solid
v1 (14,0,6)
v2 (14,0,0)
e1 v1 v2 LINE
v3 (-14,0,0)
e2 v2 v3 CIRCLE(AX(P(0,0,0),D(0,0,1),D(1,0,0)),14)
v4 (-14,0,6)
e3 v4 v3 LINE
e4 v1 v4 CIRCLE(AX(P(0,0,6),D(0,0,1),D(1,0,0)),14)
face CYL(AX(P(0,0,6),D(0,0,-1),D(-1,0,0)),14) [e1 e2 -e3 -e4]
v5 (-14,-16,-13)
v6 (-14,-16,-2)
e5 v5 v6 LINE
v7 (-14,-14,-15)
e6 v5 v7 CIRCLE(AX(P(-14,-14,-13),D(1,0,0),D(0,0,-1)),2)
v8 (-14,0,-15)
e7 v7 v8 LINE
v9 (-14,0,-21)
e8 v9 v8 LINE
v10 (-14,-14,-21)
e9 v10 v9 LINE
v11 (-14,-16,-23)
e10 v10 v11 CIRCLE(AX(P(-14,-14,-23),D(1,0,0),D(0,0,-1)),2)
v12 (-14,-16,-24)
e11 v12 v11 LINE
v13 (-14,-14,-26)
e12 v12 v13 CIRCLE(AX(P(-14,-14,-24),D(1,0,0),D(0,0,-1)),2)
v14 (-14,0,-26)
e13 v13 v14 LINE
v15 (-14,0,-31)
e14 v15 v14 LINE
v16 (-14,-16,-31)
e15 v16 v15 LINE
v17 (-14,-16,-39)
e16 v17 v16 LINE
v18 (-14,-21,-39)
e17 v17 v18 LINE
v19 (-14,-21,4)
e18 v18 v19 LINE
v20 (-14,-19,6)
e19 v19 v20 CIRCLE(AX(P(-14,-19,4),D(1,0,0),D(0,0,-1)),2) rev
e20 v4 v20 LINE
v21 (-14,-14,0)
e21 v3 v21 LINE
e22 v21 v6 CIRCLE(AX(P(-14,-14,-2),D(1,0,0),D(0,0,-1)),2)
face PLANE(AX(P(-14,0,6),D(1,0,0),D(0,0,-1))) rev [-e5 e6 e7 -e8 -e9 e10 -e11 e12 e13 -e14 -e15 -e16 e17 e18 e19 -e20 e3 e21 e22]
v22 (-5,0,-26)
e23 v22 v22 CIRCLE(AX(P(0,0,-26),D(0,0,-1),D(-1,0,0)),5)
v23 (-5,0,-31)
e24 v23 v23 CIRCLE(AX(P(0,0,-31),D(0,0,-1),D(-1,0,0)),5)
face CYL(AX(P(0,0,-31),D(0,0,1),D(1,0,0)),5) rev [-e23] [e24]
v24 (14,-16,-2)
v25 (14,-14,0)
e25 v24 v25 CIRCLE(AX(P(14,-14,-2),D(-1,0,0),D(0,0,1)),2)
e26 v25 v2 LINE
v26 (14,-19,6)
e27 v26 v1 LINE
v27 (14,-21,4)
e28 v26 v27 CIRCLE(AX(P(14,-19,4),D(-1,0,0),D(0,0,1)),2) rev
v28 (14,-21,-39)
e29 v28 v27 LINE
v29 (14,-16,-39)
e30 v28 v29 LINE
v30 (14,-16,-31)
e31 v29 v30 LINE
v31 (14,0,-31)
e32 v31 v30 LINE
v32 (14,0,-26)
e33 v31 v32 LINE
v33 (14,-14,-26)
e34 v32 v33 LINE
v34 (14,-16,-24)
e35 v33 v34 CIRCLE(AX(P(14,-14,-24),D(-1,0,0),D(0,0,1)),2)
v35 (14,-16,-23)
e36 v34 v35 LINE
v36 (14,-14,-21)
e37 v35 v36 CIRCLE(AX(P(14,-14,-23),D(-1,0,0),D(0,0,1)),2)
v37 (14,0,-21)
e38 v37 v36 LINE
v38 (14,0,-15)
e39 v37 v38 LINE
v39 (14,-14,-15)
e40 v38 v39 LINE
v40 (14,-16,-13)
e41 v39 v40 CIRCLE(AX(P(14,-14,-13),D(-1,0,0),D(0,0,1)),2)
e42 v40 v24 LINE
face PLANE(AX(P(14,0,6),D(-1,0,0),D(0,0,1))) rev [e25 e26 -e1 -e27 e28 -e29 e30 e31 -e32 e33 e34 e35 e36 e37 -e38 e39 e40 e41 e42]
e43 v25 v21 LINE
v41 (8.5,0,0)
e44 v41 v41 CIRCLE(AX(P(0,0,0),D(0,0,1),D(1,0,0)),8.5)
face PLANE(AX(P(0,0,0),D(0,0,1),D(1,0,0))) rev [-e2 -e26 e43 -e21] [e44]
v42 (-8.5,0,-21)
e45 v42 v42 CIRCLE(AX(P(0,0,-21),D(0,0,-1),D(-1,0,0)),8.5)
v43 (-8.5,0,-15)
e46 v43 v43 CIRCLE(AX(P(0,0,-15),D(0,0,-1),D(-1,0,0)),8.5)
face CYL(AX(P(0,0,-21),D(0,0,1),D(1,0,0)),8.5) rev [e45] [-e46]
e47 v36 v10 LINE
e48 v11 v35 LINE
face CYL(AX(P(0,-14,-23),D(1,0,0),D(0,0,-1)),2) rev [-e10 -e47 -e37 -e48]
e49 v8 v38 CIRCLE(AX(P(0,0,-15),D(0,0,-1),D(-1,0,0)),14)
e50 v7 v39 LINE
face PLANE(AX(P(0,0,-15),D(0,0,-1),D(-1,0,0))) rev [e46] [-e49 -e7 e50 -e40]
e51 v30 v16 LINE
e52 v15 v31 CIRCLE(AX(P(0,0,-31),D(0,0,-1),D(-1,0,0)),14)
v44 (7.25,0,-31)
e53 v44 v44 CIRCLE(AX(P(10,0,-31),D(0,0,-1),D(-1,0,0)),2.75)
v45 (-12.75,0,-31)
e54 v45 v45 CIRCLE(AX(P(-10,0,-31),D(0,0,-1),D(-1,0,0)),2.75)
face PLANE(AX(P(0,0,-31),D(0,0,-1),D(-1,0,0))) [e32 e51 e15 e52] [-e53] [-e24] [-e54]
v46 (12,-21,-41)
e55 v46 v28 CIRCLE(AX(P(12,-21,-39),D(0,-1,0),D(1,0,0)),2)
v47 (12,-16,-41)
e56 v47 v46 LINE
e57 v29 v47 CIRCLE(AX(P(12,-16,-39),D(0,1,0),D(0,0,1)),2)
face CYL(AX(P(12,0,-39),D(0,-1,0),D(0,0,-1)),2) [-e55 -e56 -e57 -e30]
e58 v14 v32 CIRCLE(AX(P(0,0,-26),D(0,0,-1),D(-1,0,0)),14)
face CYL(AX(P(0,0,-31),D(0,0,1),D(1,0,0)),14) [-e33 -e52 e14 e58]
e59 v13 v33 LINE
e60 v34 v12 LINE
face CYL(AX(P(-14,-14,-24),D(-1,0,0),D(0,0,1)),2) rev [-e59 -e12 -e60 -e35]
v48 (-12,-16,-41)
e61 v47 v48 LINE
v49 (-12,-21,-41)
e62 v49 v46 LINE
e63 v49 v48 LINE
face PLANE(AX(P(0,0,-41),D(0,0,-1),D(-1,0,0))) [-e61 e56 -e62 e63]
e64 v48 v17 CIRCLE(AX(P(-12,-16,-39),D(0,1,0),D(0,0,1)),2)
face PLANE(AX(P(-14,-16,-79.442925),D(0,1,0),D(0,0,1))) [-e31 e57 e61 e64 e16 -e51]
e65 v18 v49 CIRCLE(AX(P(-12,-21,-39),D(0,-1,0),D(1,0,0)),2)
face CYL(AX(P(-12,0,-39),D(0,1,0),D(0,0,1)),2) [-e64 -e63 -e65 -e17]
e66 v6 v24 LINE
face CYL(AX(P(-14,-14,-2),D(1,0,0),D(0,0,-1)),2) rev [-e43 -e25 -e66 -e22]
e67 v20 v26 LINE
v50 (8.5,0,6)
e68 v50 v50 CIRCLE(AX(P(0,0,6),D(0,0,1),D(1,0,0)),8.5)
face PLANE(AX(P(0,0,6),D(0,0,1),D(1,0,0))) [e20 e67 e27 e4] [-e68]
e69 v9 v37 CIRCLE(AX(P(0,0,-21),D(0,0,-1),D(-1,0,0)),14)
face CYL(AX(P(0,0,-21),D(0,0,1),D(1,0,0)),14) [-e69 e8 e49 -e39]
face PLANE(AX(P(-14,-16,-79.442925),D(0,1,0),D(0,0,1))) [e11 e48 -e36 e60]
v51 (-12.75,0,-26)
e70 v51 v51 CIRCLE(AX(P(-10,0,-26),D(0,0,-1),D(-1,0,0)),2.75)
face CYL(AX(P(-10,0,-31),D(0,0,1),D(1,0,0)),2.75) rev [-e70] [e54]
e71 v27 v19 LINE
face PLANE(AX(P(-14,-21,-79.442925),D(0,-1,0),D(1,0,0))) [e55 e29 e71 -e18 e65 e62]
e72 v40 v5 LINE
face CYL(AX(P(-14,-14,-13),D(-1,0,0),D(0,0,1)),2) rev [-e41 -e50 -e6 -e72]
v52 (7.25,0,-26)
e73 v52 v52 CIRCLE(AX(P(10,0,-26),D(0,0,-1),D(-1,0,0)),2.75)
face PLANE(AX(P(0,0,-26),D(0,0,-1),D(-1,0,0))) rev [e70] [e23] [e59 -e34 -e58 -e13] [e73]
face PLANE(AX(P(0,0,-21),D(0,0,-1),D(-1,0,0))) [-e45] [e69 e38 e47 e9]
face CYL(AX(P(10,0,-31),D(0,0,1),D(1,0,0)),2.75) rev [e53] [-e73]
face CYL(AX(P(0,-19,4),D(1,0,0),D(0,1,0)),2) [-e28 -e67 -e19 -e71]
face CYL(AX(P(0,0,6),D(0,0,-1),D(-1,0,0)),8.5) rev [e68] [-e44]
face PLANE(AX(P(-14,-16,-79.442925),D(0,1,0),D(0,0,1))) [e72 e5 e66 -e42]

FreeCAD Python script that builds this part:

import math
import FreeCAD as App
import Part
import Sketcher
from FreeCAD import Vector


def edges_at(feature, points):
    """Names of the edges that pass closest to the given points."""
    edges = feature.Shape.Edges
    near = lambda p: min(range(len(edges)), key=lambda i: edges[i].distToShape(Part.Vertex(*p))[0])
    return sorted({f"Edge{near(p) + 1}" for p in points})

doc = App.newDocument("Part")
body = doc.addObject("PartDesign::Body", "Body")

# Sketch on XY plane
sketch1 = body.newObject("Sketcher::SketchObject", "Sketch")
sketch1.AttachmentSupport = (doc.getObject("XY_Plane"), [""])
sketch1.MapMode = "FlatFace"
sketch1.addGeometry([
    Part.LineSegment(Vector(14, -16, 0), Vector(14, 0, 0)),  # 0
    Part.ArcOfCircle(Part.Circle(Vector(0, 0, 0), Vector(0, 0, 1), 14), math.radians(0), math.radians(180)),  # 1
    Part.LineSegment(Vector(-14, 0, 0), Vector(-14, -16, 0)),  # 2
    Part.LineSegment(Vector(-14, -16, 0), Vector(14, -16, 0)),  # 3
    Part.Circle(Vector(0, 0, 0), Vector(0, 0, 1), 8),  # 4
], False)
sketch1.addConstraint([
    Sketcher.Constraint("Tangent", 0, 2, 1, 1),
    Sketcher.Constraint("Tangent", 1, 2, 2, 1),
    Sketcher.Constraint("Coincident", 2, 2, 3, 1),
    Sketcher.Constraint("Coincident", 3, 2, 0, 1),
    Sketcher.Constraint("Vertical", 0),
    Sketcher.Constraint("Vertical", 2),
    Sketcher.Constraint("Horizontal", 3),
    Sketcher.Constraint("Coincident", 1, 3, -1, 1),
    Sketcher.Constraint("Coincident", 4, 3, -1, 1),
    Sketcher.Constraint("Diameter", 4, 17.0),
    Sketcher.Constraint("Radius", 1, 14.0),
    Sketcher.Constraint("DistanceY", 0, 1, 0, 2, 16.0),
])
pad1 = body.newObject("PartDesign::Pad", "Pad")
pad1.Profile = sketch1
pad1.Length = 6
body2 = doc.addObject("PartDesign::Body", "Body001")

# Sketch on XY plane
sketch2 = body2.newObject("Sketcher::SketchObject", "Sketch001")
sketch2.AttachmentSupport = (doc.getObject("XY_Plane001"), [""])
sketch2.MapMode = "FlatFace"
sketch2.AttachmentOffset = App.Placement(Vector(0, 0, -15), App.Rotation())
sketch2.addGeometry([
    Part.LineSegment(Vector(14, 0, 0), Vector(14, -16, 0)),  # 0
    Part.LineSegment(Vector(14, -16, 0), Vector(-14, -16, 0)),  # 1
    Part.LineSegment(Vector(-14, -16, 0), Vector(-14, 0, 0)),  # 2
    Part.ArcOfCircle(Part.Circle(Vector(0, 0, 0), Vector(0, 0, 1), 14), math.radians(0), math.radians(180)),  # 3
    Part.Circle(Vector(0, 0, 0), Vector(0, 0, 1), 8),  # 4
], False)
sketch2.addConstraint([
    Sketcher.Constraint("Coincident", 0, 2, 1, 1),
    Sketcher.Constraint("Coincident", 1, 2, 2, 1),
    Sketcher.Constraint("Tangent", 2, 2, 3, 2),
    Sketcher.Constraint("Tangent", 3, 1, 0, 1),
    Sketcher.Constraint("Vertical", 0),
    Sketcher.Constraint("Horizontal", 1),
    Sketcher.Constraint("Vertical", 2),
    Sketcher.Constraint("Coincident", 3, 3, -1, 1),
    Sketcher.Constraint("Coincident", 4, 3, -1, 1),
    Sketcher.Constraint("Diameter", 4, 17.0),
    Sketcher.Constraint("Radius", 3, 14.0),
    Sketcher.Constraint("DistanceY", 0, 2, 0, 1, 16.0),
])
pad2 = body2.newObject("PartDesign::Pad", "Pad001")
pad2.Profile = sketch2
pad2.Length = 6
pad2.Reversed = True
body3 = doc.addObject("PartDesign::Body", "Body002")

# Sketch on XY plane
sketch3 = body3.newObject("Sketcher::SketchObject", "Sketch002")
sketch3.AttachmentSupport = (doc.getObject("XY_Plane002"), [""])
sketch3.MapMode = "FlatFace"
sketch3.AttachmentOffset = App.Placement(Vector(0, 0, -26), App.Rotation())
sketch3.addGeometry([
    Part.LineSegment(Vector(14, -16, 0), Vector(-14, -16, 0)),  # 0
    Part.LineSegment(Vector(-14, -16, 0), Vector(-14, 0, 0)),  # 1
    Part.ArcOfCircle(Part.Circle(Vector(0, 0, 0), Vector(0, 0, 1), 14), math.radians(0), math.radians(180)),  # 2
    Part.LineSegment(Vector(14, 0, 0), Vector(14, -16, 0)),  # 3
    Part.Circle(Vector(10, 0, 0), Vector(0, 0, 1), 2.8),  # 4
    Part.Circle(Vector(0, 0, 0), Vector(0, 0, 1), 5),  # 5
    Part.Circle(Vector(-10, 0, 0), Vector(0, 0, 1), 2.8),  # 6
], False)
sketch3.addConstraint([
    Sketcher.Constraint("Coincident", 0, 2, 1, 1),
    Sketcher.Constraint("Tangent", 1, 2, 2, 2),
    Sketcher.Constraint("Tangent", 2, 1, 3, 1),
    Sketcher.Constraint("Coincident", 3, 2, 0, 1),
    Sketcher.Constraint("Horizontal", 0),
    Sketcher.Constraint("Vertical", 1),
    Sketcher.Constraint("Vertical", 3),
    Sketcher.Constraint("Coincident", 2, 3, -1, 1),
    Sketcher.Constraint("Coincident", 5, 3, -1, 1),
    Sketcher.Constraint("Equal", 4, 6),
    Sketcher.Constraint("Symmetric", 4, 3, 6, 3, -1, 1),
    Sketcher.Constraint("PointOnObject", 4, 3, -1),
    Sketcher.Constraint("Diameter", 5, 10.0),
    Sketcher.Constraint("Radius", 2, 14.0),
    Sketcher.Constraint("Diameter", 4, 5.5),
    Sketcher.Constraint("DistanceY", 1, 1, 1, 2, 16.0),
    Sketcher.Constraint("DistanceX", -1, 1, 4, 3, 10.0),
])
pad3 = body3.newObject("PartDesign::Pad", "Pad002")
pad3.Profile = sketch3
pad3.Length = 5
pad3.Reversed = True
body.AllowCompound = True
doc.recompute()

boolean = body.newObject("PartDesign::Boolean", "Boolean")
boolean.Type = "Fuse"
boolean.addObjects([body2])
doc.recompute()

boolean2 = body.newObject("PartDesign::Boolean", "Boolean001")
boolean2.Type = "Fuse"
boolean2.addObjects([body3])

# Sketch on XY plane
sketch4 = body.newObject("Sketcher::SketchObject", "Sketch003")
sketch4.AttachmentSupport = (doc.getObject("XY_Plane"), [""])
sketch4.MapMode = "FlatFace"
sketch4.AttachmentOffset = App.Placement(Vector(0, 0, 6), App.Rotation())
sketch4.addGeometry([
    Part.LineSegment(Vector(-14, -16, 0), Vector(-14, -21, 0)),
    Part.LineSegment(Vector(-14, -21, 0), Vector(14, -21, 0)),
    Part.LineSegment(Vector(14, -21, 0), Vector(14, -16, 0)),
    Part.LineSegment(Vector(14, -16, 0), Vector(-14, -16, 0)),
], False)
sketch4.addConstraint([
    Sketcher.Constraint("Coincident", 0, 2, 1, 1),
    Sketcher.Constraint("Coincident", 1, 2, 2, 1),
    Sketcher.Constraint("Coincident", 2, 2, 3, 1),
    Sketcher.Constraint("Coincident", 3, 2, 0, 1),
    Sketcher.Constraint("Vertical", 0),
    Sketcher.Constraint("Horizontal", 1),
    Sketcher.Constraint("Vertical", 2),
    Sketcher.Constraint("Horizontal", 3),
    Sketcher.Constraint("DistanceX", 1, 1, 1, 2, 28.0),
    Sketcher.Constraint("DistanceY", 0, 2, 0, 1, 5.0),
    Sketcher.Constraint("DistanceX", 0, 2, -1, 1, 14.0),
    Sketcher.Constraint("DistanceY", 0, 2, -1, 1, 21.0),
])
pad4 = body.newObject("PartDesign::Pad", "Pad003")
pad4.Profile = sketch4
pad4.Length = 47
pad4.Reversed = True
doc.recompute()

fillet = body.newObject("PartDesign::Fillet", "Fillet")
fillet.Base = (pad4, edges_at(pad4, [
    (0, -21, 6),
    (14, -18.5, -41),
    (-14, -18.5, -41),
    (0, -16, -21),
    (0, -16, -15),
    (0, -16, -26),
    (0, -16, 0),
]))
fillet.Radius = 2

doc.recompute()
